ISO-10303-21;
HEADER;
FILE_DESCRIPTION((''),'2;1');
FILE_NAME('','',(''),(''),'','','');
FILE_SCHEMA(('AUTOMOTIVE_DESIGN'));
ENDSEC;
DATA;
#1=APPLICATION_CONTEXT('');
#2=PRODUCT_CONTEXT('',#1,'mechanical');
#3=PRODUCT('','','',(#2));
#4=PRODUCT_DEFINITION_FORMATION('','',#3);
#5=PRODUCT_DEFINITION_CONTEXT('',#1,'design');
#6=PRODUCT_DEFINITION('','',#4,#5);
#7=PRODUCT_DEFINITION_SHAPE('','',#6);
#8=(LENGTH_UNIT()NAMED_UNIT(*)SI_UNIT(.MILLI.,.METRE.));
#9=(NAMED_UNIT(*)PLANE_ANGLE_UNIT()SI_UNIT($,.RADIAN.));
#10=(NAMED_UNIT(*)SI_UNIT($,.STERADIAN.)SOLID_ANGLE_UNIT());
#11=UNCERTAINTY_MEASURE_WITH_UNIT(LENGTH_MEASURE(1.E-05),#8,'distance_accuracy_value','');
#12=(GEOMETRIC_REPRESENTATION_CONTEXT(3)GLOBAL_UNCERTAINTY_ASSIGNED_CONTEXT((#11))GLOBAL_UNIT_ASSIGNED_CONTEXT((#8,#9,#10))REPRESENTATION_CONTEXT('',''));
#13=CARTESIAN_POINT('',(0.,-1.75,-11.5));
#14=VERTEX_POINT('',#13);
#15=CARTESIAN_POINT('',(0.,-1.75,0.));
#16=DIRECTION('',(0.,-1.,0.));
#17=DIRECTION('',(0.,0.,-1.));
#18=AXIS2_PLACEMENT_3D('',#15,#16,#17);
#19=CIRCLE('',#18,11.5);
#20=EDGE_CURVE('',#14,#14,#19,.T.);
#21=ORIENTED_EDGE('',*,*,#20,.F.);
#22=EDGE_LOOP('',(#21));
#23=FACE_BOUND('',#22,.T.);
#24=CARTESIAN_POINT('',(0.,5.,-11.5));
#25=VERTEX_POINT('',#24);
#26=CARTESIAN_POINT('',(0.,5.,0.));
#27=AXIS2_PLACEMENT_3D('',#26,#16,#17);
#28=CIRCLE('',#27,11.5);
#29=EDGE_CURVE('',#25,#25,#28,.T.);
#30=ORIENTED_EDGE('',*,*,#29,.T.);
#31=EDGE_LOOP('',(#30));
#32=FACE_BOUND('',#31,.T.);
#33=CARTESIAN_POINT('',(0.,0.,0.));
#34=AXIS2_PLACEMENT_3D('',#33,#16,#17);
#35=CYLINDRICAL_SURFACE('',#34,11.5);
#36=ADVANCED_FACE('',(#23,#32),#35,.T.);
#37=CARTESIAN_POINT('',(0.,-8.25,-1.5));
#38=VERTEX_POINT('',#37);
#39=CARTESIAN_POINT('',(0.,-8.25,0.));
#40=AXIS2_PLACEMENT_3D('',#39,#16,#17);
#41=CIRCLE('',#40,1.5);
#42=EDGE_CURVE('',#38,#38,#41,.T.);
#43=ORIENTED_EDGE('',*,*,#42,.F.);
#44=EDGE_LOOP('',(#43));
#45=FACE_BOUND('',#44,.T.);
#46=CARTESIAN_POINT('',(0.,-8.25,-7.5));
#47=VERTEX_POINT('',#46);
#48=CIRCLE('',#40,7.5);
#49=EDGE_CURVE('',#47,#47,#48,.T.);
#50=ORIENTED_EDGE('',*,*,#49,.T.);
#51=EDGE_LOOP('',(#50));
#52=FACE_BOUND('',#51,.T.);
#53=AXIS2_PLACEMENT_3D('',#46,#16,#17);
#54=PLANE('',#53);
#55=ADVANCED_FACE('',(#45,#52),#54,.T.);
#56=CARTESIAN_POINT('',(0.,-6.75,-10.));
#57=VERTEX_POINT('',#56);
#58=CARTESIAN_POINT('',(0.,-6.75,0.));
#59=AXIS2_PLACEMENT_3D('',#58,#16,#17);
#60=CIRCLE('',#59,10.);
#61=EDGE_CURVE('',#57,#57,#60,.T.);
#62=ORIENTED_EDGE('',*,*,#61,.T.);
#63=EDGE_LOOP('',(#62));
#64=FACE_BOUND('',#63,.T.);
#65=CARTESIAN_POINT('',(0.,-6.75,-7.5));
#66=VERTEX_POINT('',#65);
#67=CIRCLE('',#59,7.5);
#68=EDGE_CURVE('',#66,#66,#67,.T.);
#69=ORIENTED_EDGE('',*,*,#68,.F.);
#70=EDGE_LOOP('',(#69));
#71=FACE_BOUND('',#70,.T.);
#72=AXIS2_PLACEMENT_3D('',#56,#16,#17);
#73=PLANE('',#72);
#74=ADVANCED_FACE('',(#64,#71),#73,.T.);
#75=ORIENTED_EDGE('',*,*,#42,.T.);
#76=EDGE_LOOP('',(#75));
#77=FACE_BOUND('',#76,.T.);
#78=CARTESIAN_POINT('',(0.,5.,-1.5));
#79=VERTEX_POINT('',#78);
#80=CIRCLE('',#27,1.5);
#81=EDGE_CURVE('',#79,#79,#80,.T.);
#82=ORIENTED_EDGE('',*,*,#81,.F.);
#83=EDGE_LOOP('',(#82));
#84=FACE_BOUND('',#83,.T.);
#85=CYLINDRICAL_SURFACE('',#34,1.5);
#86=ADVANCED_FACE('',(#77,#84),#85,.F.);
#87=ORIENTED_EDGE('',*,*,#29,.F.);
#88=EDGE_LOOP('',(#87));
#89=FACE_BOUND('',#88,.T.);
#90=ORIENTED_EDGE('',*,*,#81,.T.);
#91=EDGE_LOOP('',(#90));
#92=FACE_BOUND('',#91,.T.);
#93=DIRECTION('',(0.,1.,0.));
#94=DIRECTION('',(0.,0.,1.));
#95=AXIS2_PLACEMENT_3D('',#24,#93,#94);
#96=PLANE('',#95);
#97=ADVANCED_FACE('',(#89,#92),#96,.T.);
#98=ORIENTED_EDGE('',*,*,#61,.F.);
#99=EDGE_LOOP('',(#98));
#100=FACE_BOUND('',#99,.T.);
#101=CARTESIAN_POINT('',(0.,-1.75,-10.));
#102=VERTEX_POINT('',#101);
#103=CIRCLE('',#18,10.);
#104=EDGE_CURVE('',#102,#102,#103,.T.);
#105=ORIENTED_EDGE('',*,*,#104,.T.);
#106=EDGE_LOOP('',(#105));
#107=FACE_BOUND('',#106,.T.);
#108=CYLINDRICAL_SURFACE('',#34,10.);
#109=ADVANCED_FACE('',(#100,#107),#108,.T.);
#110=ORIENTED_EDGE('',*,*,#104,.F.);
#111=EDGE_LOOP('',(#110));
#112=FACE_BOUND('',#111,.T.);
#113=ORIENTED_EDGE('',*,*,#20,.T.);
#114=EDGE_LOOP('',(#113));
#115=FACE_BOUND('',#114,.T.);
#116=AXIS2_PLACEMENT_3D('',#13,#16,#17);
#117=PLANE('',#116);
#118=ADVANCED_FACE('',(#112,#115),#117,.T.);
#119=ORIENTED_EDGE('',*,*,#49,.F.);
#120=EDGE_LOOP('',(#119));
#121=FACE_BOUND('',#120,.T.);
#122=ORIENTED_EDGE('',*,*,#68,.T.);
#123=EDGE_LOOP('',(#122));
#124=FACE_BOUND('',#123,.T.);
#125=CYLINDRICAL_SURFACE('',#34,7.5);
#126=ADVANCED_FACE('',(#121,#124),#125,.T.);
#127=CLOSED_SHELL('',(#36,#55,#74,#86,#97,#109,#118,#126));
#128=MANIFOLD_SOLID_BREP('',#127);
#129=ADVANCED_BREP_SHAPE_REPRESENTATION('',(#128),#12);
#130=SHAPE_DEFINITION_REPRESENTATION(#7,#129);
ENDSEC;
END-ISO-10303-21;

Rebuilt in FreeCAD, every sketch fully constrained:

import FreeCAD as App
import Part
import Sketcher

V = App.Vector
Q = App.Units.Quantity


def add_polygon(sketch, points):
    """Adds a closed chain of lines whose ends are joined by coincident constraints."""
    first, n = sketch.GeometryCount, len(points)
    for a, b in zip(points, points[1:] + points[:1]):
        sketch.addGeometry(Part.LineSegment(App.Vector(*a, 0), App.Vector(*b, 0)), False)
    for i in range(n):
        sketch.addConstraint(Sketcher.Constraint("Coincident", first + i, 2, first + (i + 1) % n, 1))

doc = App.newDocument("Part")
body = doc.addObject("PartDesign::Body", "Body")

# Sketch on YZ plane
sketch1 = body.newObject("Sketcher::SketchObject", "Sketch")
sketch1.AttachmentSupport = (doc.getObject("YZ_Plane"), [""])
sketch1.MapMode = "FlatFace"
add_polygon(sketch1, [(-1.8, -11.5), (5, -11.5), (5, -1.5), (-8.2, -1.5), (-8.2, -7.5), (-6.8, -7.5), (-6.8, -10), (-1.8, -10)])  # lines 0-7
sketch1.addConstraint([
    Sketcher.Constraint("Horizontal", 0),
    Sketcher.Constraint("Vertical", 1),
    Sketcher.Constraint("Horizontal", 2),
    Sketcher.Constraint("Vertical", 3),
    Sketcher.Constraint("Horizontal", 4),
    Sketcher.Constraint("Vertical", 5),
    Sketcher.Constraint("Horizontal", 6),
    Sketcher.Constraint("Vertical", 7),
    Sketcher.Constraint("Equal", 4, 7),
    Sketcher.Constraint("DistanceX", 6, 1, 6, 2, Q("5 mm")),
    Sketcher.Constraint("DistanceY", 1, 1, 1, 2, Q("10 mm")),
    Sketcher.Constraint("DistanceY", 3, 2, 3, 1, Q("6 mm")),
    Sketcher.Constraint("DistanceX", 4, 1, 4, 2, Q("1.5 mm")),
    Sketcher.Constraint("DistanceX", -1, 1, 0, 2, Q("5 mm")),
    Sketcher.Constraint("DistanceY", 5, 2, -1, 1, Q("10 mm")),
    Sketcher.Constraint("DistanceX", 0, 1, 0, 2, Q("6.75 mm")),
])
revolution = body.newObject("PartDesign::Revolution", "Revolution")
revolution.Profile = sketch1
revolution.ReferenceAxis = (sketch1, ["H_Axis"])
revolution.Angle = 360

doc.recompute()
